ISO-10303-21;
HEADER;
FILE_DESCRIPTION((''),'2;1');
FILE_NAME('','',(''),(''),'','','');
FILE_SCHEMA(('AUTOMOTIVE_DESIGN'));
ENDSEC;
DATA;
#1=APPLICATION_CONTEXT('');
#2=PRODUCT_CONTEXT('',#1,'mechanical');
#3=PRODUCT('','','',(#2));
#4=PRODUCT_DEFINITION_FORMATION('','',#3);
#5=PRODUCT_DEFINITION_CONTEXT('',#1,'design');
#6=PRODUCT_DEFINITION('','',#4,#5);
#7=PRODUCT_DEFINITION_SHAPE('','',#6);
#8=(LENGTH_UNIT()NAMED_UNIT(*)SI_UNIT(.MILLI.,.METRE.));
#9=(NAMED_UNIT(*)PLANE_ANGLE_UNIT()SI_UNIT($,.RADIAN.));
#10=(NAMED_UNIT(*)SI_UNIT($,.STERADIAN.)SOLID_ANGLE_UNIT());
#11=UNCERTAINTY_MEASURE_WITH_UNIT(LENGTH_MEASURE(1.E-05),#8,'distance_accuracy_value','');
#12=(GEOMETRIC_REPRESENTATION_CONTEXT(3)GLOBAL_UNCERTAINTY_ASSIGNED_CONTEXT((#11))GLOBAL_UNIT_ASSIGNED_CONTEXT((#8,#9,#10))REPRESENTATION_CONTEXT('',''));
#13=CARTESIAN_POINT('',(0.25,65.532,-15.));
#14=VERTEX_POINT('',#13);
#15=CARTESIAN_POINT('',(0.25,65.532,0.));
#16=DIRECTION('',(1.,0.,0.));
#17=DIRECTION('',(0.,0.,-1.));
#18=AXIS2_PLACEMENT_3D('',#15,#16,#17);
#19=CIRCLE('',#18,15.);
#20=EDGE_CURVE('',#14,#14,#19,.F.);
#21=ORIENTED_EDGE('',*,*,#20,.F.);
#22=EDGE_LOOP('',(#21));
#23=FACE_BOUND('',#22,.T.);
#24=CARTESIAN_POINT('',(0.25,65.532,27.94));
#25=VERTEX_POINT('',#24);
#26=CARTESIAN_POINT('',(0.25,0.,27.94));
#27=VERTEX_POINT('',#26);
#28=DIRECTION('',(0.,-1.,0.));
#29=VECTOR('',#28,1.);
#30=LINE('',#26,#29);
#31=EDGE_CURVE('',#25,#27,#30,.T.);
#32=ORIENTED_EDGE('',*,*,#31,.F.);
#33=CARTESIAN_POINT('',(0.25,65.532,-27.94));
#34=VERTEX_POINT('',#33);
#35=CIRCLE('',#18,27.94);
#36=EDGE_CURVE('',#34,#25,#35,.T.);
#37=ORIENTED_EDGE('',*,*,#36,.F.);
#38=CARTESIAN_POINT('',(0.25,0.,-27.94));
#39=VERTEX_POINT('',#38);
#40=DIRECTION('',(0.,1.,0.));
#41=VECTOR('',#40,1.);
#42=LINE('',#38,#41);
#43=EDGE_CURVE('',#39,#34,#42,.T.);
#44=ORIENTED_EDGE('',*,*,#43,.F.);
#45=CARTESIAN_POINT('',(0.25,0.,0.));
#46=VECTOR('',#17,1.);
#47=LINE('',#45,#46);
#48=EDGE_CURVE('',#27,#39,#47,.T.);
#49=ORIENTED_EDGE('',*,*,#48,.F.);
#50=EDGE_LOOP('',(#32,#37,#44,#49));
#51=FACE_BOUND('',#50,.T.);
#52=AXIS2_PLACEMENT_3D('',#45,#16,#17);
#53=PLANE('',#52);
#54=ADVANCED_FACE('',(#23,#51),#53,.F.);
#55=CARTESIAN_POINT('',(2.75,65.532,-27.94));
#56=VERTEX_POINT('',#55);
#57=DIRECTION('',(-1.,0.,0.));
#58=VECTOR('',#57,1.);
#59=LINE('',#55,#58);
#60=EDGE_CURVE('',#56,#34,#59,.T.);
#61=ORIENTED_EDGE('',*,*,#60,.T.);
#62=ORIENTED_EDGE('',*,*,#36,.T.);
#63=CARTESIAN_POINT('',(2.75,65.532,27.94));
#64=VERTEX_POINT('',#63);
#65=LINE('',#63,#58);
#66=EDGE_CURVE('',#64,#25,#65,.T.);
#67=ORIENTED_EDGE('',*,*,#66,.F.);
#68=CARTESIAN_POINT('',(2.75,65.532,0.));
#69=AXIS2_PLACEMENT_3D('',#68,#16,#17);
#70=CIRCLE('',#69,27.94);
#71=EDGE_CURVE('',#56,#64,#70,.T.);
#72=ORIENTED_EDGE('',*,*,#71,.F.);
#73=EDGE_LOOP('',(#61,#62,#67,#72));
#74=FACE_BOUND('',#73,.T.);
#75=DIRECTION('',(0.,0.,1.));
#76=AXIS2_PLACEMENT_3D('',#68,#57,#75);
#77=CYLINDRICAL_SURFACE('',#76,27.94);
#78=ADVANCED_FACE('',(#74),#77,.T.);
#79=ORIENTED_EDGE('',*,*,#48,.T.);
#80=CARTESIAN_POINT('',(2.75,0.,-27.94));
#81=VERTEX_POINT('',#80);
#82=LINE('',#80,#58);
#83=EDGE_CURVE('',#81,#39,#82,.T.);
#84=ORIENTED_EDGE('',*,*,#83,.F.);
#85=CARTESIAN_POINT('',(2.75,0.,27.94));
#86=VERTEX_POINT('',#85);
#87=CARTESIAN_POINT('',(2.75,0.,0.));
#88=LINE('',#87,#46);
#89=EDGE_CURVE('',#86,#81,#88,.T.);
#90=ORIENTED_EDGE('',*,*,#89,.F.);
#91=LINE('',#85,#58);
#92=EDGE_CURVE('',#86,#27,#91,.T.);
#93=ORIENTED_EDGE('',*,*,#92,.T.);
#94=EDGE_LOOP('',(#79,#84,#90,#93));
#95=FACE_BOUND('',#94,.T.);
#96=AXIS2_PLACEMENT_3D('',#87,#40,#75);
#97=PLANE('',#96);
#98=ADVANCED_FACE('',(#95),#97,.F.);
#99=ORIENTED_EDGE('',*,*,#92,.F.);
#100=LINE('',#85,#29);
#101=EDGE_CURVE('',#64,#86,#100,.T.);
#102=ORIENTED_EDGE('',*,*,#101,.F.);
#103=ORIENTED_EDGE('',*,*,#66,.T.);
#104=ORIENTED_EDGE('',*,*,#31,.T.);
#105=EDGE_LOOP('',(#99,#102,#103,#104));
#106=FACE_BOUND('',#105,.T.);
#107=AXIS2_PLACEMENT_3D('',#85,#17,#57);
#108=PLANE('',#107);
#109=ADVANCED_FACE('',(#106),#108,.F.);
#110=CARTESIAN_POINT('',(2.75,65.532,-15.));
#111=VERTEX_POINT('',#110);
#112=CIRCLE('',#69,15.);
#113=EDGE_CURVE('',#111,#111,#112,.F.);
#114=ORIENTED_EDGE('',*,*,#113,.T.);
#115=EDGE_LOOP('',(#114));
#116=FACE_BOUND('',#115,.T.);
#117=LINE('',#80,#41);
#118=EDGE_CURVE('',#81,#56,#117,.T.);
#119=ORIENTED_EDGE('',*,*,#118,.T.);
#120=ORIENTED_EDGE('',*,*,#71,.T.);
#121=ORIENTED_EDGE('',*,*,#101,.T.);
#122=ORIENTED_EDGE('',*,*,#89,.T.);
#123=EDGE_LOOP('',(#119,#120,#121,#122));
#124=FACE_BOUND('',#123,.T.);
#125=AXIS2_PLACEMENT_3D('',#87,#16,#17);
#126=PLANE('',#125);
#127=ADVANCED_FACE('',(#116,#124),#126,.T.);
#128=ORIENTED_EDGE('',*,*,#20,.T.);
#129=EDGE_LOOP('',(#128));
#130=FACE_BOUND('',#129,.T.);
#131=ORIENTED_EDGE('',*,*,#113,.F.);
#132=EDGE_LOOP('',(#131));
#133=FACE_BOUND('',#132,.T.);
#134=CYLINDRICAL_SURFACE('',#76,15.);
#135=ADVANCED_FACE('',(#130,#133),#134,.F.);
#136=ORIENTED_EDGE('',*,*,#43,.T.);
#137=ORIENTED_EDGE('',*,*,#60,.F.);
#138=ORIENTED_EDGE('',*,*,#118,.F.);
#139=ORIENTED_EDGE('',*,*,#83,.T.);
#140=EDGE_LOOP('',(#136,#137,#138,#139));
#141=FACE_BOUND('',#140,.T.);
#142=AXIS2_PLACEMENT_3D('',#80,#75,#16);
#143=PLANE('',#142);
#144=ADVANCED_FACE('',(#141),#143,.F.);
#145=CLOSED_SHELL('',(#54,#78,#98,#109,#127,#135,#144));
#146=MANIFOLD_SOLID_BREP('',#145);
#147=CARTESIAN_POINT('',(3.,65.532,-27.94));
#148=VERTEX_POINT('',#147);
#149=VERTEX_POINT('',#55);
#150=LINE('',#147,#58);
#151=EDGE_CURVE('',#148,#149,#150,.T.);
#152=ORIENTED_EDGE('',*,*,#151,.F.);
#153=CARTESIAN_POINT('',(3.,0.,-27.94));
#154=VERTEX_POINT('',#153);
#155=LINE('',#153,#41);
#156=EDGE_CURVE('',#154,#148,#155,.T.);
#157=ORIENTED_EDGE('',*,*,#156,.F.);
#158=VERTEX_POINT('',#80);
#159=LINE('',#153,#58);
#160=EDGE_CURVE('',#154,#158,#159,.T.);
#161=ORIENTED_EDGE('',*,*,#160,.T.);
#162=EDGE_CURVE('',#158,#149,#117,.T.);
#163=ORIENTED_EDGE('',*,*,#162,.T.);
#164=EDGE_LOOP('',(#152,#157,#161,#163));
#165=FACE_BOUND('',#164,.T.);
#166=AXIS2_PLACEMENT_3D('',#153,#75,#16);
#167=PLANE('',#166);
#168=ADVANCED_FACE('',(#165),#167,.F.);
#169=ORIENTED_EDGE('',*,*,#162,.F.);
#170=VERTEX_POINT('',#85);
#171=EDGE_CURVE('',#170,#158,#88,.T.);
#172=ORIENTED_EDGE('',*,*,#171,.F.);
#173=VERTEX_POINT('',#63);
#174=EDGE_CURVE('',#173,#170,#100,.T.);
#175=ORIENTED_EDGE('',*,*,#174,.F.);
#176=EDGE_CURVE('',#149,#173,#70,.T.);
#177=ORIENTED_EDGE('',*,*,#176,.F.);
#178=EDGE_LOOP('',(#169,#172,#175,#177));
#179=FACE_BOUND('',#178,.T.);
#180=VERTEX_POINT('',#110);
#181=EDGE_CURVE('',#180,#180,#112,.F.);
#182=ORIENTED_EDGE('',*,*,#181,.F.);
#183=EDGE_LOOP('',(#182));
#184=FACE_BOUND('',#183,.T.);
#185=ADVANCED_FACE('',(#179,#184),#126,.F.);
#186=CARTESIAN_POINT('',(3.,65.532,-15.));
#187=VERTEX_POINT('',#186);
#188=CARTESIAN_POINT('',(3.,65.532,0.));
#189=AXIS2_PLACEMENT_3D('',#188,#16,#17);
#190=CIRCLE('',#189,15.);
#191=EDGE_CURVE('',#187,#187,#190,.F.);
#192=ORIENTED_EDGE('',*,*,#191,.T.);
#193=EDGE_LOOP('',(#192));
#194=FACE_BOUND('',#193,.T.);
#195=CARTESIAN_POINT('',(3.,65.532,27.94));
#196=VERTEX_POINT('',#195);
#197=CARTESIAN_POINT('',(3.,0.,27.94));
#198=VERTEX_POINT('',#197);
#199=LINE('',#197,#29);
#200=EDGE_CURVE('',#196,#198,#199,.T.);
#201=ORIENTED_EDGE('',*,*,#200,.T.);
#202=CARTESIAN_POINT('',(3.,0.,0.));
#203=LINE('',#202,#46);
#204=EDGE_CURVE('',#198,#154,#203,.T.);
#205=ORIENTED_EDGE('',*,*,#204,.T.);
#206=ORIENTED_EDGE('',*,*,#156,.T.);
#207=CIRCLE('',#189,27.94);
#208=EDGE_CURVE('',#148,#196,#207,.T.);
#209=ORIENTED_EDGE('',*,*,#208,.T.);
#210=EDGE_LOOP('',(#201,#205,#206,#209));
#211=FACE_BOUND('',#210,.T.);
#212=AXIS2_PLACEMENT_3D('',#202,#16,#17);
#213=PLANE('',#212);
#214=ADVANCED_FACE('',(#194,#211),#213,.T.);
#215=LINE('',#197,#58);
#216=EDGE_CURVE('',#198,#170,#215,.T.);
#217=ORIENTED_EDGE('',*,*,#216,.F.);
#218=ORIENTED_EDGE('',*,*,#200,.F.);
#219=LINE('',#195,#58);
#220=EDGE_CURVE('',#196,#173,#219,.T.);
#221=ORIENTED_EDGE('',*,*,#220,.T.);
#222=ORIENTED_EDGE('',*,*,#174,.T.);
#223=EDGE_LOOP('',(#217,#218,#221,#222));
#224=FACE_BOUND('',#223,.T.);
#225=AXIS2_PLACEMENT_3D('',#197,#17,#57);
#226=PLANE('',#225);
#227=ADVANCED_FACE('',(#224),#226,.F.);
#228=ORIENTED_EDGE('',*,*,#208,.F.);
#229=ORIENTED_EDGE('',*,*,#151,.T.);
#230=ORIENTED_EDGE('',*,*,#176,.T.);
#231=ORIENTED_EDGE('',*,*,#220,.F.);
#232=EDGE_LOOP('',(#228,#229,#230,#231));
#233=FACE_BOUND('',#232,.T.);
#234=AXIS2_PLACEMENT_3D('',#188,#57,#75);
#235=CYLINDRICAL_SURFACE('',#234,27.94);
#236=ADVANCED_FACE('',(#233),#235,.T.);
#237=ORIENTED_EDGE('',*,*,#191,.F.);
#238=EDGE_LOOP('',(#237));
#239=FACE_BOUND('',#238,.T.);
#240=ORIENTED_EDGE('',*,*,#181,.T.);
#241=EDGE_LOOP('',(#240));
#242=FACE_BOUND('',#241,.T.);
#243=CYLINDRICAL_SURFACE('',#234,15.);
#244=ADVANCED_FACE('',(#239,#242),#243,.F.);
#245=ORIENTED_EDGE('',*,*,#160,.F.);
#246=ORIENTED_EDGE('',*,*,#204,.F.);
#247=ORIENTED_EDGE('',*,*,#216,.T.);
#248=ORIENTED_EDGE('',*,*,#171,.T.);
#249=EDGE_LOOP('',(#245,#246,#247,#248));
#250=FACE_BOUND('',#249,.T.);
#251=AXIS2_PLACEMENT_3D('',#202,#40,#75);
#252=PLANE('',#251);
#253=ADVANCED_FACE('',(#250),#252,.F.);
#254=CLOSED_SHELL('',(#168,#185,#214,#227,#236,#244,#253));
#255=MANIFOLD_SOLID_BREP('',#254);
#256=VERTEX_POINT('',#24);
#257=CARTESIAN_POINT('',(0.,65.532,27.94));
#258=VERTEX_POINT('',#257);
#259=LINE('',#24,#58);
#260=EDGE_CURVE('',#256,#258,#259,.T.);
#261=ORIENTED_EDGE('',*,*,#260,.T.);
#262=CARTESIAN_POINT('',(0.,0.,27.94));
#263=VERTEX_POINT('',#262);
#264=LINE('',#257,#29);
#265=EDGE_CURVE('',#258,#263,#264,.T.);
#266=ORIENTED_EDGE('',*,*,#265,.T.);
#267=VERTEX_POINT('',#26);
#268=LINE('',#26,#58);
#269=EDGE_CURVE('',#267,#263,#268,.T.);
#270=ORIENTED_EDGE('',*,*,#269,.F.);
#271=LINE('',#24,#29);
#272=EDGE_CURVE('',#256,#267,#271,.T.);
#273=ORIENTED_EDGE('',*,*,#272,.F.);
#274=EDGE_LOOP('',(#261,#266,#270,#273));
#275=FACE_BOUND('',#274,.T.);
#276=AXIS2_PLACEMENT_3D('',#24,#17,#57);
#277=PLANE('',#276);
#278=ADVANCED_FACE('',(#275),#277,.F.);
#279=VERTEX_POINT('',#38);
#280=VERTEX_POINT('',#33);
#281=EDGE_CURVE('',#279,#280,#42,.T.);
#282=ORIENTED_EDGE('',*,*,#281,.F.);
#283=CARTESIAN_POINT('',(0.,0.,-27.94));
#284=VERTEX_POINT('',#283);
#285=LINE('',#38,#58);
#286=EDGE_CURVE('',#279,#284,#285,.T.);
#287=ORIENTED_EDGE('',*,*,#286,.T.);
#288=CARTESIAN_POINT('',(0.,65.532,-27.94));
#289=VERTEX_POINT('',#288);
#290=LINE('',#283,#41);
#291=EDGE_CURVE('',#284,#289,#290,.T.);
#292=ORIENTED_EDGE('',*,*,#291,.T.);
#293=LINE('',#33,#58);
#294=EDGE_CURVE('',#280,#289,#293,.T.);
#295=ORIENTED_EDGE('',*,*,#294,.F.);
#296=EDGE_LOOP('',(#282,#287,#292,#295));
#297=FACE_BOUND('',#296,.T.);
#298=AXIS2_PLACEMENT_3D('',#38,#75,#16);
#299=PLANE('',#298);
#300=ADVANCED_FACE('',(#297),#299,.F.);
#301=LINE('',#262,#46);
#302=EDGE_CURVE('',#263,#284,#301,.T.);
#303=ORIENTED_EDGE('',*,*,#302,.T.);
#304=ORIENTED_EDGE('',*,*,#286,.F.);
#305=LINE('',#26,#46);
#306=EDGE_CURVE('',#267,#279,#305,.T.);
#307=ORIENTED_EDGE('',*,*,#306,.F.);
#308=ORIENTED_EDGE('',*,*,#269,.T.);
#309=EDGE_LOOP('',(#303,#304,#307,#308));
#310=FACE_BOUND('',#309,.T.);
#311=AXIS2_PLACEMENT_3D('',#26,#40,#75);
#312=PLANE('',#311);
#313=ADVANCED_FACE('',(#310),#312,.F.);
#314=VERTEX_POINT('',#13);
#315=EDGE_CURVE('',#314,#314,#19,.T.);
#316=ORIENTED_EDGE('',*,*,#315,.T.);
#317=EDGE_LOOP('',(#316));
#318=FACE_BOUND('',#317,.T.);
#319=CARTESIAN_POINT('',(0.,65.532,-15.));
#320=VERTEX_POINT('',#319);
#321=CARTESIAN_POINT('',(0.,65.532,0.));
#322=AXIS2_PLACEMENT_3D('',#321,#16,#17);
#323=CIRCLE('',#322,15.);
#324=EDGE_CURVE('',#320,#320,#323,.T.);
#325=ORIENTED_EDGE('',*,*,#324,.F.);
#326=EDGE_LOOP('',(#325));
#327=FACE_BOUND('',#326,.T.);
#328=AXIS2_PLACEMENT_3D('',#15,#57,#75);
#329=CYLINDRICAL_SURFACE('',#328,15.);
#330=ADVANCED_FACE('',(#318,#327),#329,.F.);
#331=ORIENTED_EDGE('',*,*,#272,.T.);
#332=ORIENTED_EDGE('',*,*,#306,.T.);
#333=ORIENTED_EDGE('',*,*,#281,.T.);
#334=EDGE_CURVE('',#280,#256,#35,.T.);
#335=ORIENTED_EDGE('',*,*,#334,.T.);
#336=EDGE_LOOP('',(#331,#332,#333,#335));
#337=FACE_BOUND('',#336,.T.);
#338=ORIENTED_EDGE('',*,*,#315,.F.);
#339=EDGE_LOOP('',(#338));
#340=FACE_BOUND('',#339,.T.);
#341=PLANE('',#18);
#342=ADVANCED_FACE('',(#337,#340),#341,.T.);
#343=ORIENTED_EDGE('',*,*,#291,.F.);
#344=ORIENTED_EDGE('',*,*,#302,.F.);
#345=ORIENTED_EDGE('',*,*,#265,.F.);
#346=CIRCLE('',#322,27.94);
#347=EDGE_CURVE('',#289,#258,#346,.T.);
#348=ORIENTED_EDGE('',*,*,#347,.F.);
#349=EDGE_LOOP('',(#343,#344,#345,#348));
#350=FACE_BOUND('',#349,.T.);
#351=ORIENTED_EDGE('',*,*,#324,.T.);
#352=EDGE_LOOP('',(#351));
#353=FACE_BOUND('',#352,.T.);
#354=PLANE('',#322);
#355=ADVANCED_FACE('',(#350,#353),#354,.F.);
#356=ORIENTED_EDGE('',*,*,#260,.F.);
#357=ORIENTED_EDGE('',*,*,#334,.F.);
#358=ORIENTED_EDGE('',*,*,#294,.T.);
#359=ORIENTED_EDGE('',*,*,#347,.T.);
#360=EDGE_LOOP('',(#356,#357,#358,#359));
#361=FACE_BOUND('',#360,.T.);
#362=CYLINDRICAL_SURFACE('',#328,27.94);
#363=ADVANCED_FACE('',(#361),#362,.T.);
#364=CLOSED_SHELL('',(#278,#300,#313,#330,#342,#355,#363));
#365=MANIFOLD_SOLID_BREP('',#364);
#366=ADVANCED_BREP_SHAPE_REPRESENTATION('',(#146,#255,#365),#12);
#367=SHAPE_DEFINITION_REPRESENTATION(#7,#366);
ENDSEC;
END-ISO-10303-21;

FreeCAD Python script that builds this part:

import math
import FreeCAD as App
import Part
import Sketcher

V = App.Vector
Q = App.Units.Quantity

doc = App.newDocument("Part")
body = doc.addObject("PartDesign::Body", "Body")

# Sketch on YZ plane
sketch1 = body.newObject("Sketcher::SketchObject", "Sketch")
sketch1.AttachmentSupport = (doc.getObject("YZ_Plane"), [""])
sketch1.MapMode = "FlatFace"
sketch1.addGeometry([
    Part.LineSegment(V(66, 28, 0), V(0, 28, 0)),  # 0
    Part.LineSegment(V(0, 28, 0), V(0, -28, 0)),  # 1
    Part.LineSegment(V(0, -28, 0), V(66, -28, 0)),  # 2
    Part.ArcOfCircle(Part.Circle(V(66, 0, 0), V(0, 0, 1), 28), math.radians(-90), math.radians(90)),  # 3
    Part.Circle(V(66, 0, 0), V(0, 0, 1), 15),  # 4
], False)
sketch1.addConstraint([
    Sketcher.Constraint("Coincident", 0, 2, 1, 1),
    Sketcher.Constraint("Coincident", 1, 2, 2, 1),
    Sketcher.Constraint("Tangent", 2, 2, 3, 1),
    Sketcher.Constraint("Tangent", 3, 2, 0, 1),
    Sketcher.Constraint("Horizontal", 0),
    Sketcher.Constraint("Vertical", 1),
    Sketcher.Constraint("Horizontal", 2),
    Sketcher.Constraint("Coincident", 4, 3, 3, 3),
    Sketcher.Constraint("Symmetric", 0, 2, 1, 2, -1, 1),
    Sketcher.Constraint("Diameter", 4, Q("30 mm")),
    Sketcher.Constraint("Radius", 3, Q("27.94 mm")),
    Sketcher.Constraint("DistanceX", 0, 2, 0, 1, Q("65.532 mm")),
])
pad1 = body.newObject("PartDesign::Pad", "Pad")
pad1.Profile = sketch1
pad1.Length = 0.25
body2 = doc.addObject("PartDesign::Body", "Body001")

# Sketch on YZ plane
sketch2 = body2.newObject("Sketcher::SketchObject", "Sketch001")
sketch2.AttachmentSupport = (doc.getObject("YZ_Plane001"), [""])
sketch2.MapMode = "FlatFace"
sketch2.AttachmentOffset = App.Placement(V(0, 0, 0.25), App.Rotation())
sketch2.addGeometry([
    Part.LineSegment(V(0, -28, 0), V(66, -28, 0)),  # 0
    Part.ArcOfCircle(Part.Circle(V(66, 0, 0), V(0, 0, 1), 28), math.radians(-90), math.radians(90)),  # 1
    Part.LineSegment(V(66, 28, 0), V(0, 28, 0)),  # 2
    Part.LineSegment(V(0, 28, 0), V(0, -28, 0)),  # 3
    Part.Circle(V(66, 0, 0), V(0, 0, 1), 15),  # 4
], False)
sketch2.addConstraint([
    Sketcher.Constraint("Tangent", 0, 2, 1, 1),
    Sketcher.Constraint("Tangent", 1, 2, 2, 1),
    Sketcher.Constraint("Coincident", 2, 2, 3, 1),
    Sketcher.Constraint("Coincident", 3, 2, 0, 1),
    Sketcher.Constraint("Horizontal", 0),
    Sketcher.Constraint("Horizontal", 2),
    Sketcher.Constraint("Vertical", 3),
    Sketcher.Constraint("Coincident", 4, 3, 1, 3),
    Sketcher.Constraint("Symmetric", 2, 2, 3, 2, -1, 1),
    Sketcher.Constraint("Diameter", 4, Q("30 mm")),
    Sketcher.Constraint("Radius", 1, Q("27.94 mm")),
    Sketcher.Constraint("DistanceX", 0, 1, 0, 2, Q("65.532 mm")),
])
pad2 = body2.newObject("PartDesign::Pad", "Pad001")
pad2.Profile = sketch2
pad2.Length = 2.5
body3 = doc.addObject("PartDesign::Body", "Body002")

# Sketch on YZ plane
sketch3 = body3.newObject("Sketcher::SketchObject", "Sketch002")
sketch3.AttachmentSupport = (doc.getObject("YZ_Plane002"), [""])
sketch3.MapMode = "FlatFace"
sketch3.AttachmentOffset = App.Placement(V(0, 0, 2.75), App.Rotation())
sketch3.addGeometry([
    Part.LineSegment(V(0, 28, 0), V(0, -28, 0)),  # 0
    Part.LineSegment(V(0, -28, 0), V(66, -28, 0)),  # 1
    Part.ArcOfCircle(Part.Circle(V(66, 0, 0), V(0, 0, 1), 28), math.radians(-90), math.radians(90)),  # 2
    Part.LineSegment(V(66, 28, 0), V(0, 28, 0)),  # 3
    Part.Circle(V(66, 0, 0), V(0, 0, 1), 15),  # 4
], False)
sketch3.addConstraint([
    Sketcher.Constraint("Coincident", 0, 2, 1, 1),
    Sketcher.Constraint("Tangent", 1, 2, 2, 1),
    Sketcher.Constraint("Tangent", 2, 2, 3, 1),
    Sketcher.Constraint("Coincident", 3, 2, 0, 1),
    Sketcher.Constraint("Vertical", 0),
    Sketcher.Constraint("Horizontal", 1),
    Sketcher.Constraint("Horizontal", 3),
    Sketcher.Constraint("Coincident", 4, 3, 2, 3),
    Sketcher.Constraint("Symmetric", 0, 2, 3, 2, -1, 1),
    Sketcher.Constraint("Diameter", 4, Q("30 mm")),
    Sketcher.Constraint("Radius", 2, Q("27.94 mm")),
    Sketcher.Constraint("DistanceX", 1, 1, 1, 2, Q("65.532 mm")),
])
pad3 = body3.newObject("PartDesign::Pad", "Pad002")
pad3.Profile = sketch3
pad3.Length = 0.25

doc.recompute()
